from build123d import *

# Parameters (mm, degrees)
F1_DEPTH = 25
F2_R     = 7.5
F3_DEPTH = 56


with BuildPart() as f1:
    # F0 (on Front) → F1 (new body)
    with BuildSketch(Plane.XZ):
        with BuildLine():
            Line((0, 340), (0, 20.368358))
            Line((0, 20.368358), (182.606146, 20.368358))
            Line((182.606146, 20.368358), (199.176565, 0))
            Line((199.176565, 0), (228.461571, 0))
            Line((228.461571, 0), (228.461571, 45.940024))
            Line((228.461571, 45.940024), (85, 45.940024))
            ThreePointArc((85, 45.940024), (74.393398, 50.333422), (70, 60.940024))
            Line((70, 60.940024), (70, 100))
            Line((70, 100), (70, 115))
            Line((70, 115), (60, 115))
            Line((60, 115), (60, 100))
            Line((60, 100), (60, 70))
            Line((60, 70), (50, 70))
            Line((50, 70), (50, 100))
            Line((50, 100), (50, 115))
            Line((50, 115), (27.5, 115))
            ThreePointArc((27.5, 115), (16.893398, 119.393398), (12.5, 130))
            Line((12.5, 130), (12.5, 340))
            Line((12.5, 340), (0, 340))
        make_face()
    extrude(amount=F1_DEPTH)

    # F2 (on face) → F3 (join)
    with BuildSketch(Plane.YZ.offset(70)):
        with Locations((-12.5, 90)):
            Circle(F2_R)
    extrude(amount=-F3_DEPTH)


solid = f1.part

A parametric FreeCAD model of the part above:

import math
import FreeCAD as App
import Part
import Sketcher

doc = App.newDocument("Part")
body = doc.addObject("PartDesign::Body", "Body")

# Sketch on XZ plane
sketch1 = doc.addObject("Sketcher::SketchObject", "Sketch")
body.addObject(sketch1)
sketch1.AttachmentSupport = (doc.XZ_Plane, [""])
sketch1.MapMode = "FlatFace"
sketch1.addGeometry([
    Part.LineSegment(App.Vector(0, 340, 0), App.Vector(0, 20, 0)),  # 0
    Part.LineSegment(App.Vector(0, 20, 0), App.Vector(183, 20, 0)),  # 1
    Part.LineSegment(App.Vector(183, 20, 0), App.Vector(199, 0, 0)),  # 2
    Part.LineSegment(App.Vector(199, 0, 0), App.Vector(228, 0, 0)),  # 3
    Part.LineSegment(App.Vector(228, 0, 0), App.Vector(228, 46, 0)),  # 4
    Part.LineSegment(App.Vector(228, 46, 0), App.Vector(85, 46, 0)),  # 5
    Part.ArcOfCircle(Part.Circle(App.Vector(85, 61, 0), App.Vector(0, 0, 1), 15), math.radians(180), math.radians(270)),  # 6
    Part.LineSegment(App.Vector(70, 61, 0), App.Vector(70, 115, 0)),  # 7
    Part.LineSegment(App.Vector(70, 115, 0), App.Vector(60, 115, 0)),  # 8
    Part.LineSegment(App.Vector(60, 115, 0), App.Vector(60, 70, 0)),  # 9
    Part.LineSegment(App.Vector(60, 70, 0), App.Vector(50, 70, 0)),  # 10
    Part.LineSegment(App.Vector(50, 70, 0), App.Vector(50, 115, 0)),  # 11
    Part.LineSegment(App.Vector(50, 115, 0), App.Vector(28, 115, 0)),  # 12
    Part.ArcOfCircle(Part.Circle(App.Vector(27, 130, 0), App.Vector(0, 0, 1), 15), math.radians(180), math.radians(270)),  # 13
    Part.LineSegment(App.Vector(12, 130, 0), App.Vector(12, 340, 0)),  # 14
    Part.LineSegment(App.Vector(12, 340, 0), App.Vector(0, 340, 0)),  # 15
], False)
sketch1.addConstraint([
    Sketcher.Constraint("Coincident", 0, 2, 1, 1),
    Sketcher.Constraint("Coincident", 1, 2, 2, 1),
    Sketcher.Constraint("Coincident", 2, 2, 3, 1),
    Sketcher.Constraint("Coincident", 3, 2, 4, 1),
    Sketcher.Constraint("Coincident", 4, 2, 5, 1),
    Sketcher.Constraint("Tangent", 5, 2, 6, 2),
    Sketcher.Constraint("Tangent", 6, 1, 7, 1),
    Sketcher.Constraint("Coincident", 7, 2, 8, 1),
    Sketcher.Constraint("Coincident", 8, 2, 9, 1),
    Sketcher.Constraint("Coincident", 9, 2, 10, 1),
    Sketcher.Constraint("Coincident", 10, 2, 11, 1),
    Sketcher.Constraint("Coincident", 11, 2, 12, 1),
    Sketcher.Constraint("Tangent", 12, 2, 13, 2),
    Sketcher.Constraint("Tangent", 13, 1, 14, 1),
    Sketcher.Constraint("Coincident", 14, 2, 15, 1),
    Sketcher.Constraint("Coincident", 15, 2, 0, 1),
    Sketcher.Constraint("Vertical", 0),
    Sketcher.Constraint("Horizontal", 1),
    Sketcher.Constraint("Horizontal", 3),
    Sketcher.Constraint("Vertical", 4),
    Sketcher.Constraint("Horizontal", 5),
    Sketcher.Constraint("Vertical", 7),
    Sketcher.Constraint("Horizontal", 8),
    Sketcher.Constraint("Vertical", 9),
    Sketcher.Constraint("Horizontal", 10),
    Sketcher.Constraint("Vertical", 11),
    Sketcher.Constraint("Horizontal", 12),
    Sketcher.Constraint("Vertical", 14),
    Sketcher.Constraint("Horizontal", 15),
    Sketcher.Constraint("Equal", 6, 13),
    Sketcher.Constraint("PointOnObject", 0, 2, -2),
    Sketcher.Constraint("PointOnObject", 2, 2, -1),
    Sketcher.Constraint("Horizontal", 8, 2, 11, 2),
    Sketcher.Constraint("Equal", 8, 10),
    Sketcher.Constraint("Radius", 6, 14.999999),
    Sketcher.Constraint("DistanceX", 8, 2, 8, 1, 10.0),
    Sketcher.Constraint("DistanceY", 9, 2, 9, 1, 45.0),
    Sketcher.Constraint("DistanceY", 14, 1, 14, 2, 210.0),
    Sketcher.Constraint("DistanceX", 12, 2, 12, 1, 22.5),
    Sketcher.Constraint("DistanceX", 15, 2, 15, 1, 12.5),
    Sketcher.Constraint("DistanceY", -1, 1, 13, 3, 129.999999),
    Sketcher.Constraint("DistanceX", 5, 2, 5, 1, 143.461571),
    Sketcher.Constraint("DistanceY", 0, 2, 0, 1, 319.631642),
    Sketcher.Constraint("DistanceX", 1, 1, 1, 2, 182.606146),
    Sketcher.Constraint("DistanceX", 3, 1, 3, 2, 29.285006),
    Sketcher.Constraint("DistanceY", 4, 1, 4, 2, 45.940024),
])
pad1 = doc.addObject("PartDesign::Pad", "Pad")
body.addObject(pad1)
pad1.Profile = sketch1
pad1.Length = 25

# Sketch on YZ plane
sketch2 = doc.addObject("Sketcher::SketchObject", "Sketch001")
body.addObject(sketch2)
sketch2.AttachmentSupport = (doc.YZ_Plane, [""])
sketch2.MapMode = "FlatFace"
sketch2.AttachmentOffset = App.Placement(App.Vector(0, 0, 70), App.Rotation())
sketch2.addGeometry(Part.Circle(App.Vector(-12, 90, 0), App.Vector(0, 0, 1), 8), False)
sketch2.addConstraint([
    Sketcher.Constraint("Diameter", 0, 15.0),
    Sketcher.Constraint("DistanceY", -1, 1, 0, 3, 90.0),
    Sketcher.Constraint("DistanceX", 0, 3, -1, 1, 12.5),
])
pad2 = doc.addObject("PartDesign::Pad", "Pad001")
body.addObject(pad2)
pad2.Profile = sketch2
pad2.Length = 56
pad2.Reversed = True

doc.recompute()
